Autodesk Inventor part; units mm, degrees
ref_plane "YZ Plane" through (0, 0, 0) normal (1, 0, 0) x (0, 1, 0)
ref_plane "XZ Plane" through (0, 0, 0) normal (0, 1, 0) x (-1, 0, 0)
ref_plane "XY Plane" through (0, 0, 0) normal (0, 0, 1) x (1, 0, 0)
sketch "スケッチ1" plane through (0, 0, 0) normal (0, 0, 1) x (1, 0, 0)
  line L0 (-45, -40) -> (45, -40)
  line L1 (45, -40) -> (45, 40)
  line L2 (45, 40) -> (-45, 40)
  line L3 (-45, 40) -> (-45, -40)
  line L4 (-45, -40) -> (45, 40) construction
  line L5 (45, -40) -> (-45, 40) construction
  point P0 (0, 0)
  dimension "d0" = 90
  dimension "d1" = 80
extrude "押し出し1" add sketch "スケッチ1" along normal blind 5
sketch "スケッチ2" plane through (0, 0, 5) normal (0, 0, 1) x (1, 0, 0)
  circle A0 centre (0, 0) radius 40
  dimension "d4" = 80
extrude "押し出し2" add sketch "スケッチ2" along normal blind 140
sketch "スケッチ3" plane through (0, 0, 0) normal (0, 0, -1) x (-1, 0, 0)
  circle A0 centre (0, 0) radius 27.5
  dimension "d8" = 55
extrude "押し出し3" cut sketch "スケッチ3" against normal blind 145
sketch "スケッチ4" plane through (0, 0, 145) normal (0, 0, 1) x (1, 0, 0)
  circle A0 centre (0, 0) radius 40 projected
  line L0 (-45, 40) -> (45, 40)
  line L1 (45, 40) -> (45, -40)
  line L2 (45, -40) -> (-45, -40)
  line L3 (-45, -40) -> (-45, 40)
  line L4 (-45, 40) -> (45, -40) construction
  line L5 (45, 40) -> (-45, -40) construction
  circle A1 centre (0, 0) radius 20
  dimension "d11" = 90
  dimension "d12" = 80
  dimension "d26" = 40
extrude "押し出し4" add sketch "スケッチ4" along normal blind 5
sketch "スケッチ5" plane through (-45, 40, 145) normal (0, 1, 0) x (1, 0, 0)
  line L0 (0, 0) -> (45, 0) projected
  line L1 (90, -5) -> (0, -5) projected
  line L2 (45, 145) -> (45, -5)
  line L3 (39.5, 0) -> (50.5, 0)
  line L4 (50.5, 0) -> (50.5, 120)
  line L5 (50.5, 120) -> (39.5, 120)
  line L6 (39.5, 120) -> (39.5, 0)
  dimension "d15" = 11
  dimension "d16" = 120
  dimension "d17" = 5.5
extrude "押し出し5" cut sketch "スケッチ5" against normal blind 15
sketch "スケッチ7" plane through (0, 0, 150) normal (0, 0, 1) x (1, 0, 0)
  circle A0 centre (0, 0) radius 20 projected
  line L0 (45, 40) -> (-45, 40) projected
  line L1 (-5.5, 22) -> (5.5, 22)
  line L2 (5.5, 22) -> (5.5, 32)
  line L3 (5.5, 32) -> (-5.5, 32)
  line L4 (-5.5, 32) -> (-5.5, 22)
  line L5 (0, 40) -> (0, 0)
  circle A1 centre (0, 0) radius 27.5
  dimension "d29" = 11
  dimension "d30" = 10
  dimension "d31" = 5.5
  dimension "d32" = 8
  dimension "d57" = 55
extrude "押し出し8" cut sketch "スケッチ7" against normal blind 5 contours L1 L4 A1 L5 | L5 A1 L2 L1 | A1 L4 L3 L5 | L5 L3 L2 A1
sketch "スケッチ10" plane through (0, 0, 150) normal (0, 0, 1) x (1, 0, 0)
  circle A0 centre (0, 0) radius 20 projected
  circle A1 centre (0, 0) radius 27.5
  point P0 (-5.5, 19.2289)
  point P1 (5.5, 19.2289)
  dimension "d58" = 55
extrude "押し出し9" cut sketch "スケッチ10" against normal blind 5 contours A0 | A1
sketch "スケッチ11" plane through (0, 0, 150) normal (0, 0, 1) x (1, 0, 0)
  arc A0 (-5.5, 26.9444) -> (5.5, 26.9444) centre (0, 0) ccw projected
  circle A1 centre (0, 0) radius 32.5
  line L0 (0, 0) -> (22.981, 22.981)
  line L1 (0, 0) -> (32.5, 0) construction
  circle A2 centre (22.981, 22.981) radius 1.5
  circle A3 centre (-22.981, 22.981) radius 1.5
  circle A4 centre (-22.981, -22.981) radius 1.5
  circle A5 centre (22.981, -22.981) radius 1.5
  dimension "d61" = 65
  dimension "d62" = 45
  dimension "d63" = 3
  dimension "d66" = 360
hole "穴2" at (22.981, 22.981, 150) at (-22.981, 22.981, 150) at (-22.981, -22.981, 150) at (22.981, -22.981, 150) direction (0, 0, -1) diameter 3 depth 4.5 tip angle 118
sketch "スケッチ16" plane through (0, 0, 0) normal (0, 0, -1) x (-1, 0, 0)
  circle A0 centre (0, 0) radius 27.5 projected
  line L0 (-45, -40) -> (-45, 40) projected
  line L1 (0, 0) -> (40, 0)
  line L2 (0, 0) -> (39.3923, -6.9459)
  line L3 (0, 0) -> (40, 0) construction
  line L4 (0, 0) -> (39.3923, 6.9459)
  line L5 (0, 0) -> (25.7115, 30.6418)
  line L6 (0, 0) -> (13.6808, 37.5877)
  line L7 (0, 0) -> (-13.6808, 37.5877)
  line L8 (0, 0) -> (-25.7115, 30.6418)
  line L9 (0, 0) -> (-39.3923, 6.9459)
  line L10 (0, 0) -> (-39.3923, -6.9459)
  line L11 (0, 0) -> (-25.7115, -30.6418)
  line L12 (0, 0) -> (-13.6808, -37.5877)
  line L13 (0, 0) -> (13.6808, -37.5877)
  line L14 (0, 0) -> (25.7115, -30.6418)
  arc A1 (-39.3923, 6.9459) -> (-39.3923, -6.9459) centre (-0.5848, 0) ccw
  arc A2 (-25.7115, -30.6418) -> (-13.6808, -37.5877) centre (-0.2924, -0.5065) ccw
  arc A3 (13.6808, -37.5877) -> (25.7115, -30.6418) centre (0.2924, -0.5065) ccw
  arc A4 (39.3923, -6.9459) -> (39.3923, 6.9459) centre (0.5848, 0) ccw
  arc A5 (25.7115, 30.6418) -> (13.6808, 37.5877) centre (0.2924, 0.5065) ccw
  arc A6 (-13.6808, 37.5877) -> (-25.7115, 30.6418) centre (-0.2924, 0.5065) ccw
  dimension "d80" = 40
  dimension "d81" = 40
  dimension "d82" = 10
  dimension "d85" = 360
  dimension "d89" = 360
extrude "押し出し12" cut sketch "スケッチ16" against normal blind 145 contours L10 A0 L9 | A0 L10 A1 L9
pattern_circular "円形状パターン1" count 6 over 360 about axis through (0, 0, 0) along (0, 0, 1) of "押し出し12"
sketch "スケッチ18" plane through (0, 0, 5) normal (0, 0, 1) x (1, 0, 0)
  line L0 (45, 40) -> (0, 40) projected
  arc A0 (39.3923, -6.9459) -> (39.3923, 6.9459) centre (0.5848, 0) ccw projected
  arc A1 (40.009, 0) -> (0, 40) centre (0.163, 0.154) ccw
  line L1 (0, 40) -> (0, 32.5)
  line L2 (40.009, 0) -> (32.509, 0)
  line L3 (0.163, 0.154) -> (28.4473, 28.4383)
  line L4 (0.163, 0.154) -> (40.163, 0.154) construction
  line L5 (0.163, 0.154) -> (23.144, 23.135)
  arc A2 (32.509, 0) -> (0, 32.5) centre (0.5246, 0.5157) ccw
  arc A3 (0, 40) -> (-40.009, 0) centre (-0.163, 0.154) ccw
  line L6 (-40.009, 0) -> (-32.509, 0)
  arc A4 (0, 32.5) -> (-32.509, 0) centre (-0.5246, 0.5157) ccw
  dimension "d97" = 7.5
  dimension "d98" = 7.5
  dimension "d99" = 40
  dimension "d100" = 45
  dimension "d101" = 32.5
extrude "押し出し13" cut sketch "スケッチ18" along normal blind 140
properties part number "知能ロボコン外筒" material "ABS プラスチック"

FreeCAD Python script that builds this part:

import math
import FreeCAD as App
import Part
import Sketcher

V = App.Vector
Q = App.Units.Quantity


def add_polygon(sketch, points):
    """Adds a closed chain of lines whose ends are joined by coincident constraints."""
    first, n = sketch.GeometryCount, len(points)
    for a, b in zip(points, points[1:] + points[:1]):
        sketch.addGeometry(Part.LineSegment(App.Vector(*a, 0), App.Vector(*b, 0)), False)
    for i in range(n):
        sketch.addConstraint(Sketcher.Constraint("Coincident", first + i, 2, first + (i + 1) % n, 1))

doc = App.newDocument("Part")
params = doc.addObject("Spreadsheet::Sheet", "Params")
for row, (alias, value) in enumerate([
    ("sketch1_width", "90 mm"),
    ("sketch1_height", "80 mm"),
    ("pad1_length", "5 mm"),
    ("sketch2_diameter", "80 mm"),
    ("pad2_length", "140 mm"),
    ("sketch3_diameter", "55 mm"),
    ("pocket1_length", "145 mm"),
    ("sketch4_diameter", "40 mm"),
    ("sketch4_width", "90 mm"),
    ("sketch4_height", "80 mm"),
    ("pad3_length", "5 mm"),
    ("sketch5_width", "11 mm"),
    ("sketch5_height", "120 mm"),
    ("pocket2_length", "15 mm"),
    ("sketch6_width", "11 mm"),
    ("sketch6_height", "10 mm"),
    ("pocket3_length", "5 mm"),
    ("sketch7_diameter", "55 mm"),
    ("pocket4_length", "5 mm"),
    ("sketch8_diameter", "3 mm"),
    ("hole_diameter", "3 mm"),
    ("hole_depth", "4.5 mm"),
    ("sketch9_length", "40 mm"),
    ("pocket5_length", "145 mm"),
    ("sketch10_width", "7.5 mm"),
    ("pocket6_length", "140 mm"),
], start=1):
    params.set(f"A{row}", alias)
    params.set(f"B{row}", "=" + value)
    params.setAlias(f"B{row}", alias)

body = doc.addObject("PartDesign::Body", "Body")

sketch1 = body.newObject("Sketcher::SketchObject", "Sketch")
sketch1.AttachmentSupport = (doc.getObject("XY_Plane"), [""])
sketch1.MapMode = "FlatFace"
add_polygon(sketch1, [(-45, 40), (-45, -40), (45, -40), (45, 40)])
sketch1.addConstraint([
    Sketcher.Constraint("Vertical", 0),
    Sketcher.Constraint("Horizontal", 1),
    Sketcher.Constraint("Vertical", 2),
    Sketcher.Constraint("Horizontal", 3),
    Sketcher.Constraint("Symmetric", 0, 2, 2, 2, -1, 1),
    Sketcher.Constraint("DistanceX", 1, 1, 1, 2, 90.0),
    Sketcher.Constraint("DistanceY", 0, 2, 0, 1, 80.0),
])
sketch1.setExpression("Constraints[9]", "Params.sketch1_width")
sketch1.setExpression("Constraints[10]", "Params.sketch1_height")
pad1 = body.newObject("PartDesign::Pad", "Pad")
pad1.Profile = sketch1
pad1.setExpression("Length", "Params.pad1_length")

sketch2 = body.newObject("Sketcher::SketchObject", "Sketch001")
sketch2.AttachmentSupport = (doc.getObject("XY_Plane"), [""])
sketch2.MapMode = "FlatFace"
sketch2.AttachmentOffset = App.Placement(V(0, 0, 5), App.Rotation())
sketch2.addGeometry(Part.Circle(V(0, 0, 0), V(0, 0, 1), 40), False)
sketch2.addConstraint([
    Sketcher.Constraint("Coincident", 0, 3, -1, 1),
    Sketcher.Constraint("Diameter", 0, 80.0),
])
sketch2.setExpression("Constraints[1]", "Params.sketch2_diameter")
pad2 = body.newObject("PartDesign::Pad", "Pad001")
pad2.Profile = sketch2
pad2.setExpression("Length", "Params.pad2_length")

sketch3 = body.newObject("Sketcher::SketchObject", "Sketch002")
sketch3.AttachmentSupport = (doc.getObject("XY_Plane"), [""])
sketch3.MapMode = "FlatFace"
sketch3.addGeometry(Part.Circle(V(0, 0, 0), V(0, 0, 1), 28), False)
sketch3.addConstraint([
    Sketcher.Constraint("Coincident", 0, 3, -1, 1),
    Sketcher.Constraint("Diameter", 0, 55.0),
])
sketch3.setExpression("Constraints[1]", "Params.sketch3_diameter")
pocket1 = body.newObject("PartDesign::Pocket", "Pocket")
pocket1.Profile = sketch3
pocket1.setExpression("Length", "Params.pocket1_length")
pocket1.Reversed = True

sketch4 = body.newObject("Sketcher::SketchObject", "Sketch003")
sketch4.AttachmentSupport = (doc.getObject("XY_Plane"), [""])
sketch4.MapMode = "FlatFace"
sketch4.AttachmentOffset = App.Placement(V(0, 0, 145), App.Rotation())
add_polygon(sketch4, [(45, -40), (45, 40), (-45, 40), (-45, -40)])
sketch4.addGeometry(Part.Circle(V(0, 0, 0), V(0, 0, 1), 20), False)
sketch4.addConstraint([
    Sketcher.Constraint("Vertical", 0),
    Sketcher.Constraint("Horizontal", 1),
    Sketcher.Constraint("Vertical", 2),
    Sketcher.Constraint("Horizontal", 3),
    Sketcher.Constraint("Coincident", 4, 3, -1, 1),
    Sketcher.Constraint("Symmetric", 0, 2, 2, 2, -1, 1),
    Sketcher.Constraint("Diameter", 4, 40.0),
    Sketcher.Constraint("DistanceX", 1, 2, 1, 1, 90.0),
    Sketcher.Constraint("DistanceY", 0, 1, 0, 2, 80.0),
])
sketch4.setExpression("Constraints[10]", "Params.sketch4_diameter")
sketch4.setExpression("Constraints[11]", "Params.sketch4_width")
sketch4.setExpression("Constraints[12]", "Params.sketch4_height")
pad3 = body.newObject("PartDesign::Pad", "Pad002")
pad3.Profile = sketch4
pad3.setExpression("Length", "Params.pad3_length")

sketch5 = body.newObject("Sketcher::SketchObject", "Sketch004")
sketch5.AttachmentSupport = (doc.getObject("XZ_Plane"), [""])
sketch5.MapMode = "FlatFace"
sketch5.AttachmentOffset = App.Placement(V(0, 0, -40), App.Rotation())
add_polygon(sketch5, [(-6, 25), (-6, 145), (6, 145), (6, 25)])
sketch5.addConstraint([
    Sketcher.Constraint("Vertical", 0),
    Sketcher.Constraint("Horizontal", 1),
    Sketcher.Constraint("Vertical", 2),
    Sketcher.Constraint("Horizontal", 3),
    Sketcher.Constraint("DistanceX", 1, 1, 1, 2, 11.0),
    Sketcher.Constraint("DistanceY", 0, 1, 0, 2, 120.0),
    Sketcher.Constraint("DistanceX", 0, 2, -1, 1, 5.5),
    Sketcher.Constraint("DistanceY", -1, 1, 0, 2, 145.0),
])
sketch5.setExpression("Constraints[8]", "Params.sketch5_width")
sketch5.setExpression("Constraints[9]", "Params.sketch5_height")
pocket2 = body.newObject("PartDesign::Pocket", "Pocket001")
pocket2.Profile = sketch5
pocket2.setExpression("Length", "Params.pocket2_length")
pocket2.Reversed = True

sketch6 = body.newObject("Sketcher::SketchObject", "Sketch005")
sketch6.AttachmentSupport = (doc.getObject("XY_Plane"), [""])
sketch6.MapMode = "FlatFace"
sketch6.AttachmentOffset = App.Placement(V(0, 0, 150), App.Rotation())
add_polygon(sketch6, [(-6, 22), (6, 22), (6, 32), (-6, 32)])
sketch6.addConstraint([
    Sketcher.Constraint("Horizontal", 0),
    Sketcher.Constraint("Vertical", 1),
    Sketcher.Constraint("Horizontal", 2),
    Sketcher.Constraint("Vertical", 3),
    Sketcher.Constraint("DistanceX", 0, 1, 0, 2, 11.0),
    Sketcher.Constraint("DistanceY", 1, 1, 1, 2, 10.0),
    Sketcher.Constraint("DistanceX", -1, 1, 0, 2, 5.5),
    Sketcher.Constraint("DistanceY", -1, 1, 0, 2, 22.0),
])
sketch6.setExpression("Constraints[8]", "Params.sketch6_width")
sketch6.setExpression("Constraints[9]", "Params.sketch6_height")
pocket3 = body.newObject("PartDesign::Pocket", "Pocket002")
pocket3.Profile = sketch6
pocket3.setExpression("Length", "Params.pocket3_length")

sketch7 = body.newObject("Sketcher::SketchObject", "Sketch006")
sketch7.AttachmentSupport = (doc.getObject("XY_Plane"), [""])
sketch7.MapMode = "FlatFace"
sketch7.AttachmentOffset = App.Placement(V(0, 0, 150), App.Rotation())
sketch7.addGeometry(Part.Circle(V(0, 0, 0), V(0, 0, 1), 28), False)
sketch7.addConstraint([
    Sketcher.Constraint("Coincident", 0, 3, -1, 1),
    Sketcher.Constraint("Diameter", 0, 55.0),
])
sketch7.setExpression("Constraints[1]", "Params.sketch7_diameter")
pocket4 = body.newObject("PartDesign::Pocket", "Pocket003")
pocket4.Profile = sketch7
pocket4.setExpression("Length", "Params.pocket4_length")

sketch8 = body.newObject("Sketcher::SketchObject", "Sketch007")
sketch8.AttachmentSupport = (doc.getObject("XY_Plane"), [""])
sketch8.MapMode = "FlatFace"
sketch8.AttachmentOffset = App.Placement(V(0, 0, 150), App.Rotation())
sketch8.addGeometry([
    Part.Circle(V(23, 23, 0), V(0, 0, 1), 1.5),
    Part.Circle(V(-23, 23, 0), V(0, 0, 1), 1.5),
    Part.Circle(V(-23, -23, 0), V(0, 0, 1), 1.5),
    Part.Circle(V(23, -23, 0), V(0, 0, 1), 1.5),
], False)
sketch8.addConstraint([
    Sketcher.Constraint("Equal", 0, 1),
    Sketcher.Constraint("Equal", 1, 2),
    Sketcher.Constraint("Equal", 2, 3),
    Sketcher.Constraint("Symmetric", 0, 3, 2, 3, -1, 1),
    Sketcher.Constraint("Symmetric", 1, 3, 3, 3, -1, 1),
    Sketcher.Constraint("Symmetric", 0, 3, 1, 3, -2),
    Sketcher.Constraint("Diameter", 0, 3.0),
    Sketcher.Constraint("DistanceX", -1, 1, 0, 3, 22.981),
    Sketcher.Constraint("DistanceY", -1, 1, 0, 3, 22.981),
])
sketch8.setExpression("Constraints[6]", "Params.sketch8_diameter")
doc.recompute()
hole = body.newObject("PartDesign::Hole", "Hole")
hole.Profile = sketch8
hole.ThreadType = "None"
hole.setExpression("Diameter", "Params.hole_diameter")
hole.DepthType = "Dimension"
hole.setExpression("Depth", "Params.hole_depth")
hole.DrillPoint = "Angled"
hole.DrillPointAngle = 118

sketch9 = body.newObject("Sketcher::SketchObject", "Sketch008")
sketch9.AttachmentSupport = (doc.getObject("XY_Plane"), [""])
sketch9.MapMode = "FlatFace"
sketch9.addGeometry([
    Part.LineSegment(V(0, 0, 0), V(39, 7, 0)),
    Part.ArcOfCircle(Part.Circle(V(1, 0, 0), V(0, 0, 1), 39), math.radians(-10), math.radians(10)),
    Part.LineSegment(V(39, -7, 0), V(0, 0, 0)),
], False)
sketch9.addConstraint([
    Sketcher.Constraint("Coincident", 0, 2, 1, 2),
    Sketcher.Constraint("Coincident", 1, 1, 2, 1),
    Sketcher.Constraint("Coincident", 2, 2, 0, 1),
    Sketcher.Constraint("Coincident", 2, 2, -1, 1),
    Sketcher.Constraint("Symmetric", 0, 2, 1, 1, -1),
    Sketcher.Constraint("Angle", 0, Q("10 deg")),
    Sketcher.Constraint("Distance", 0, 40.0),
    Sketcher.Constraint("Radius", 1, 39.4242),
])
sketch9.setExpression("Constraints[6]", "Params.sketch9_length")
pocket5 = body.newObject("PartDesign::Pocket", "Pocket004")
pocket5.Profile = sketch9
pocket5.setExpression("Length", "Params.pocket5_length")
pocket5.Reversed = True
doc.recompute()

polarpattern = body.newObject("PartDesign::PolarPattern", "PolarPattern")
polarpattern.Originals = [pocket5]
polarpattern.Axis = (doc.getObject("Z_Axis"), [""])
polarpattern.Angle = 360
polarpattern.Occurrences = 6
body.Tip = polarpattern

sketch10 = body.newObject("Sketcher::SketchObject", "Sketch009")
sketch10.AttachmentSupport = (doc.getObject("XY_Plane"), [""])
sketch10.MapMode = "FlatFace"
sketch10.AttachmentOffset = App.Placement(V(0, 0, 5), App.Rotation())
sketch10.addGeometry([
    Part.LineSegment(V(32.509, 0, 0), V(40.009, 0, 0)),
    Part.ArcOfCircle(Part.Circle(V(0.163, 0.154, 0), V(0, 0, 1), 39.846298), math.radians(-0.22144), math.radians(90.234381)),
    Part.ArcOfCircle(Part.Circle(V(-0.163, 0.154, 0), V(0, 0, 1), 39.846333), math.radians(89.765619), math.radians(180.22144)),
    Part.LineSegment(V(-40.009, 0, 0), V(-32.509, 0, 0)),
    Part.ArcOfCircle(Part.Circle(V(-0.5246, 0.5157, 0), V(0, 0, 1), 31.988602), math.radians(89.060331), math.radians(180.923728)),
    Part.ArcOfCircle(Part.Circle(V(0.5246, 0.5157, 0), V(0, 0, 1), 31.988557), math.radians(-0.923728), math.radians(90.939669)),
], False)
sketch10.addConstraint([
    Sketcher.Constraint("Coincident", 0, 2, 1, 1),
    Sketcher.Constraint("Coincident", 1, 2, 2, 1),
    Sketcher.Constraint("Coincident", 2, 2, 3, 1),
    Sketcher.Constraint("Coincident", 3, 2, 4, 2),
    Sketcher.Constraint("Coincident", 4, 1, 5, 2),
    Sketcher.Constraint("Coincident", 5, 1, 0, 1),
    Sketcher.Constraint("Horizontal", 0),
    Sketcher.Constraint("Horizontal", 3),
    Sketcher.Constraint("Equal", 1, 2),
    Sketcher.Constraint("Equal", 4, 5),
    Sketcher.Constraint("Symmetric", 0, 2, 2, 2, -1, 1),
    Sketcher.Constraint("Symmetric", 1, 3, 2, 3, -2),
    Sketcher.Constraint("Symmetric", 4, 3, 5, 3, -2),
    Sketcher.Constraint("DistanceX", 0, 1, 0, 2, 7.5),
    Sketcher.Constraint("DistanceY", -1, 1, 1, 2, 40.0),
    Sketcher.Constraint("DistanceY", -1, 1, 4, 1, 32.5),
    Sketcher.Constraint("Radius", 1, 39.8463),
    Sketcher.Constraint("Radius", 4, 31.9886),
    Sketcher.Constraint("DistanceX", -1, 1, 1, 3, 0.163),
])
sketch10.setExpression("Constraints[13]", "Params.sketch10_width")
pocket6 = body.newObject("PartDesign::Pocket", "Pocket005")
pocket6.Profile = sketch10
pocket6.setExpression("Length", "Params.pocket6_length")
pocket6.Reversed = True

doc.recompute()
